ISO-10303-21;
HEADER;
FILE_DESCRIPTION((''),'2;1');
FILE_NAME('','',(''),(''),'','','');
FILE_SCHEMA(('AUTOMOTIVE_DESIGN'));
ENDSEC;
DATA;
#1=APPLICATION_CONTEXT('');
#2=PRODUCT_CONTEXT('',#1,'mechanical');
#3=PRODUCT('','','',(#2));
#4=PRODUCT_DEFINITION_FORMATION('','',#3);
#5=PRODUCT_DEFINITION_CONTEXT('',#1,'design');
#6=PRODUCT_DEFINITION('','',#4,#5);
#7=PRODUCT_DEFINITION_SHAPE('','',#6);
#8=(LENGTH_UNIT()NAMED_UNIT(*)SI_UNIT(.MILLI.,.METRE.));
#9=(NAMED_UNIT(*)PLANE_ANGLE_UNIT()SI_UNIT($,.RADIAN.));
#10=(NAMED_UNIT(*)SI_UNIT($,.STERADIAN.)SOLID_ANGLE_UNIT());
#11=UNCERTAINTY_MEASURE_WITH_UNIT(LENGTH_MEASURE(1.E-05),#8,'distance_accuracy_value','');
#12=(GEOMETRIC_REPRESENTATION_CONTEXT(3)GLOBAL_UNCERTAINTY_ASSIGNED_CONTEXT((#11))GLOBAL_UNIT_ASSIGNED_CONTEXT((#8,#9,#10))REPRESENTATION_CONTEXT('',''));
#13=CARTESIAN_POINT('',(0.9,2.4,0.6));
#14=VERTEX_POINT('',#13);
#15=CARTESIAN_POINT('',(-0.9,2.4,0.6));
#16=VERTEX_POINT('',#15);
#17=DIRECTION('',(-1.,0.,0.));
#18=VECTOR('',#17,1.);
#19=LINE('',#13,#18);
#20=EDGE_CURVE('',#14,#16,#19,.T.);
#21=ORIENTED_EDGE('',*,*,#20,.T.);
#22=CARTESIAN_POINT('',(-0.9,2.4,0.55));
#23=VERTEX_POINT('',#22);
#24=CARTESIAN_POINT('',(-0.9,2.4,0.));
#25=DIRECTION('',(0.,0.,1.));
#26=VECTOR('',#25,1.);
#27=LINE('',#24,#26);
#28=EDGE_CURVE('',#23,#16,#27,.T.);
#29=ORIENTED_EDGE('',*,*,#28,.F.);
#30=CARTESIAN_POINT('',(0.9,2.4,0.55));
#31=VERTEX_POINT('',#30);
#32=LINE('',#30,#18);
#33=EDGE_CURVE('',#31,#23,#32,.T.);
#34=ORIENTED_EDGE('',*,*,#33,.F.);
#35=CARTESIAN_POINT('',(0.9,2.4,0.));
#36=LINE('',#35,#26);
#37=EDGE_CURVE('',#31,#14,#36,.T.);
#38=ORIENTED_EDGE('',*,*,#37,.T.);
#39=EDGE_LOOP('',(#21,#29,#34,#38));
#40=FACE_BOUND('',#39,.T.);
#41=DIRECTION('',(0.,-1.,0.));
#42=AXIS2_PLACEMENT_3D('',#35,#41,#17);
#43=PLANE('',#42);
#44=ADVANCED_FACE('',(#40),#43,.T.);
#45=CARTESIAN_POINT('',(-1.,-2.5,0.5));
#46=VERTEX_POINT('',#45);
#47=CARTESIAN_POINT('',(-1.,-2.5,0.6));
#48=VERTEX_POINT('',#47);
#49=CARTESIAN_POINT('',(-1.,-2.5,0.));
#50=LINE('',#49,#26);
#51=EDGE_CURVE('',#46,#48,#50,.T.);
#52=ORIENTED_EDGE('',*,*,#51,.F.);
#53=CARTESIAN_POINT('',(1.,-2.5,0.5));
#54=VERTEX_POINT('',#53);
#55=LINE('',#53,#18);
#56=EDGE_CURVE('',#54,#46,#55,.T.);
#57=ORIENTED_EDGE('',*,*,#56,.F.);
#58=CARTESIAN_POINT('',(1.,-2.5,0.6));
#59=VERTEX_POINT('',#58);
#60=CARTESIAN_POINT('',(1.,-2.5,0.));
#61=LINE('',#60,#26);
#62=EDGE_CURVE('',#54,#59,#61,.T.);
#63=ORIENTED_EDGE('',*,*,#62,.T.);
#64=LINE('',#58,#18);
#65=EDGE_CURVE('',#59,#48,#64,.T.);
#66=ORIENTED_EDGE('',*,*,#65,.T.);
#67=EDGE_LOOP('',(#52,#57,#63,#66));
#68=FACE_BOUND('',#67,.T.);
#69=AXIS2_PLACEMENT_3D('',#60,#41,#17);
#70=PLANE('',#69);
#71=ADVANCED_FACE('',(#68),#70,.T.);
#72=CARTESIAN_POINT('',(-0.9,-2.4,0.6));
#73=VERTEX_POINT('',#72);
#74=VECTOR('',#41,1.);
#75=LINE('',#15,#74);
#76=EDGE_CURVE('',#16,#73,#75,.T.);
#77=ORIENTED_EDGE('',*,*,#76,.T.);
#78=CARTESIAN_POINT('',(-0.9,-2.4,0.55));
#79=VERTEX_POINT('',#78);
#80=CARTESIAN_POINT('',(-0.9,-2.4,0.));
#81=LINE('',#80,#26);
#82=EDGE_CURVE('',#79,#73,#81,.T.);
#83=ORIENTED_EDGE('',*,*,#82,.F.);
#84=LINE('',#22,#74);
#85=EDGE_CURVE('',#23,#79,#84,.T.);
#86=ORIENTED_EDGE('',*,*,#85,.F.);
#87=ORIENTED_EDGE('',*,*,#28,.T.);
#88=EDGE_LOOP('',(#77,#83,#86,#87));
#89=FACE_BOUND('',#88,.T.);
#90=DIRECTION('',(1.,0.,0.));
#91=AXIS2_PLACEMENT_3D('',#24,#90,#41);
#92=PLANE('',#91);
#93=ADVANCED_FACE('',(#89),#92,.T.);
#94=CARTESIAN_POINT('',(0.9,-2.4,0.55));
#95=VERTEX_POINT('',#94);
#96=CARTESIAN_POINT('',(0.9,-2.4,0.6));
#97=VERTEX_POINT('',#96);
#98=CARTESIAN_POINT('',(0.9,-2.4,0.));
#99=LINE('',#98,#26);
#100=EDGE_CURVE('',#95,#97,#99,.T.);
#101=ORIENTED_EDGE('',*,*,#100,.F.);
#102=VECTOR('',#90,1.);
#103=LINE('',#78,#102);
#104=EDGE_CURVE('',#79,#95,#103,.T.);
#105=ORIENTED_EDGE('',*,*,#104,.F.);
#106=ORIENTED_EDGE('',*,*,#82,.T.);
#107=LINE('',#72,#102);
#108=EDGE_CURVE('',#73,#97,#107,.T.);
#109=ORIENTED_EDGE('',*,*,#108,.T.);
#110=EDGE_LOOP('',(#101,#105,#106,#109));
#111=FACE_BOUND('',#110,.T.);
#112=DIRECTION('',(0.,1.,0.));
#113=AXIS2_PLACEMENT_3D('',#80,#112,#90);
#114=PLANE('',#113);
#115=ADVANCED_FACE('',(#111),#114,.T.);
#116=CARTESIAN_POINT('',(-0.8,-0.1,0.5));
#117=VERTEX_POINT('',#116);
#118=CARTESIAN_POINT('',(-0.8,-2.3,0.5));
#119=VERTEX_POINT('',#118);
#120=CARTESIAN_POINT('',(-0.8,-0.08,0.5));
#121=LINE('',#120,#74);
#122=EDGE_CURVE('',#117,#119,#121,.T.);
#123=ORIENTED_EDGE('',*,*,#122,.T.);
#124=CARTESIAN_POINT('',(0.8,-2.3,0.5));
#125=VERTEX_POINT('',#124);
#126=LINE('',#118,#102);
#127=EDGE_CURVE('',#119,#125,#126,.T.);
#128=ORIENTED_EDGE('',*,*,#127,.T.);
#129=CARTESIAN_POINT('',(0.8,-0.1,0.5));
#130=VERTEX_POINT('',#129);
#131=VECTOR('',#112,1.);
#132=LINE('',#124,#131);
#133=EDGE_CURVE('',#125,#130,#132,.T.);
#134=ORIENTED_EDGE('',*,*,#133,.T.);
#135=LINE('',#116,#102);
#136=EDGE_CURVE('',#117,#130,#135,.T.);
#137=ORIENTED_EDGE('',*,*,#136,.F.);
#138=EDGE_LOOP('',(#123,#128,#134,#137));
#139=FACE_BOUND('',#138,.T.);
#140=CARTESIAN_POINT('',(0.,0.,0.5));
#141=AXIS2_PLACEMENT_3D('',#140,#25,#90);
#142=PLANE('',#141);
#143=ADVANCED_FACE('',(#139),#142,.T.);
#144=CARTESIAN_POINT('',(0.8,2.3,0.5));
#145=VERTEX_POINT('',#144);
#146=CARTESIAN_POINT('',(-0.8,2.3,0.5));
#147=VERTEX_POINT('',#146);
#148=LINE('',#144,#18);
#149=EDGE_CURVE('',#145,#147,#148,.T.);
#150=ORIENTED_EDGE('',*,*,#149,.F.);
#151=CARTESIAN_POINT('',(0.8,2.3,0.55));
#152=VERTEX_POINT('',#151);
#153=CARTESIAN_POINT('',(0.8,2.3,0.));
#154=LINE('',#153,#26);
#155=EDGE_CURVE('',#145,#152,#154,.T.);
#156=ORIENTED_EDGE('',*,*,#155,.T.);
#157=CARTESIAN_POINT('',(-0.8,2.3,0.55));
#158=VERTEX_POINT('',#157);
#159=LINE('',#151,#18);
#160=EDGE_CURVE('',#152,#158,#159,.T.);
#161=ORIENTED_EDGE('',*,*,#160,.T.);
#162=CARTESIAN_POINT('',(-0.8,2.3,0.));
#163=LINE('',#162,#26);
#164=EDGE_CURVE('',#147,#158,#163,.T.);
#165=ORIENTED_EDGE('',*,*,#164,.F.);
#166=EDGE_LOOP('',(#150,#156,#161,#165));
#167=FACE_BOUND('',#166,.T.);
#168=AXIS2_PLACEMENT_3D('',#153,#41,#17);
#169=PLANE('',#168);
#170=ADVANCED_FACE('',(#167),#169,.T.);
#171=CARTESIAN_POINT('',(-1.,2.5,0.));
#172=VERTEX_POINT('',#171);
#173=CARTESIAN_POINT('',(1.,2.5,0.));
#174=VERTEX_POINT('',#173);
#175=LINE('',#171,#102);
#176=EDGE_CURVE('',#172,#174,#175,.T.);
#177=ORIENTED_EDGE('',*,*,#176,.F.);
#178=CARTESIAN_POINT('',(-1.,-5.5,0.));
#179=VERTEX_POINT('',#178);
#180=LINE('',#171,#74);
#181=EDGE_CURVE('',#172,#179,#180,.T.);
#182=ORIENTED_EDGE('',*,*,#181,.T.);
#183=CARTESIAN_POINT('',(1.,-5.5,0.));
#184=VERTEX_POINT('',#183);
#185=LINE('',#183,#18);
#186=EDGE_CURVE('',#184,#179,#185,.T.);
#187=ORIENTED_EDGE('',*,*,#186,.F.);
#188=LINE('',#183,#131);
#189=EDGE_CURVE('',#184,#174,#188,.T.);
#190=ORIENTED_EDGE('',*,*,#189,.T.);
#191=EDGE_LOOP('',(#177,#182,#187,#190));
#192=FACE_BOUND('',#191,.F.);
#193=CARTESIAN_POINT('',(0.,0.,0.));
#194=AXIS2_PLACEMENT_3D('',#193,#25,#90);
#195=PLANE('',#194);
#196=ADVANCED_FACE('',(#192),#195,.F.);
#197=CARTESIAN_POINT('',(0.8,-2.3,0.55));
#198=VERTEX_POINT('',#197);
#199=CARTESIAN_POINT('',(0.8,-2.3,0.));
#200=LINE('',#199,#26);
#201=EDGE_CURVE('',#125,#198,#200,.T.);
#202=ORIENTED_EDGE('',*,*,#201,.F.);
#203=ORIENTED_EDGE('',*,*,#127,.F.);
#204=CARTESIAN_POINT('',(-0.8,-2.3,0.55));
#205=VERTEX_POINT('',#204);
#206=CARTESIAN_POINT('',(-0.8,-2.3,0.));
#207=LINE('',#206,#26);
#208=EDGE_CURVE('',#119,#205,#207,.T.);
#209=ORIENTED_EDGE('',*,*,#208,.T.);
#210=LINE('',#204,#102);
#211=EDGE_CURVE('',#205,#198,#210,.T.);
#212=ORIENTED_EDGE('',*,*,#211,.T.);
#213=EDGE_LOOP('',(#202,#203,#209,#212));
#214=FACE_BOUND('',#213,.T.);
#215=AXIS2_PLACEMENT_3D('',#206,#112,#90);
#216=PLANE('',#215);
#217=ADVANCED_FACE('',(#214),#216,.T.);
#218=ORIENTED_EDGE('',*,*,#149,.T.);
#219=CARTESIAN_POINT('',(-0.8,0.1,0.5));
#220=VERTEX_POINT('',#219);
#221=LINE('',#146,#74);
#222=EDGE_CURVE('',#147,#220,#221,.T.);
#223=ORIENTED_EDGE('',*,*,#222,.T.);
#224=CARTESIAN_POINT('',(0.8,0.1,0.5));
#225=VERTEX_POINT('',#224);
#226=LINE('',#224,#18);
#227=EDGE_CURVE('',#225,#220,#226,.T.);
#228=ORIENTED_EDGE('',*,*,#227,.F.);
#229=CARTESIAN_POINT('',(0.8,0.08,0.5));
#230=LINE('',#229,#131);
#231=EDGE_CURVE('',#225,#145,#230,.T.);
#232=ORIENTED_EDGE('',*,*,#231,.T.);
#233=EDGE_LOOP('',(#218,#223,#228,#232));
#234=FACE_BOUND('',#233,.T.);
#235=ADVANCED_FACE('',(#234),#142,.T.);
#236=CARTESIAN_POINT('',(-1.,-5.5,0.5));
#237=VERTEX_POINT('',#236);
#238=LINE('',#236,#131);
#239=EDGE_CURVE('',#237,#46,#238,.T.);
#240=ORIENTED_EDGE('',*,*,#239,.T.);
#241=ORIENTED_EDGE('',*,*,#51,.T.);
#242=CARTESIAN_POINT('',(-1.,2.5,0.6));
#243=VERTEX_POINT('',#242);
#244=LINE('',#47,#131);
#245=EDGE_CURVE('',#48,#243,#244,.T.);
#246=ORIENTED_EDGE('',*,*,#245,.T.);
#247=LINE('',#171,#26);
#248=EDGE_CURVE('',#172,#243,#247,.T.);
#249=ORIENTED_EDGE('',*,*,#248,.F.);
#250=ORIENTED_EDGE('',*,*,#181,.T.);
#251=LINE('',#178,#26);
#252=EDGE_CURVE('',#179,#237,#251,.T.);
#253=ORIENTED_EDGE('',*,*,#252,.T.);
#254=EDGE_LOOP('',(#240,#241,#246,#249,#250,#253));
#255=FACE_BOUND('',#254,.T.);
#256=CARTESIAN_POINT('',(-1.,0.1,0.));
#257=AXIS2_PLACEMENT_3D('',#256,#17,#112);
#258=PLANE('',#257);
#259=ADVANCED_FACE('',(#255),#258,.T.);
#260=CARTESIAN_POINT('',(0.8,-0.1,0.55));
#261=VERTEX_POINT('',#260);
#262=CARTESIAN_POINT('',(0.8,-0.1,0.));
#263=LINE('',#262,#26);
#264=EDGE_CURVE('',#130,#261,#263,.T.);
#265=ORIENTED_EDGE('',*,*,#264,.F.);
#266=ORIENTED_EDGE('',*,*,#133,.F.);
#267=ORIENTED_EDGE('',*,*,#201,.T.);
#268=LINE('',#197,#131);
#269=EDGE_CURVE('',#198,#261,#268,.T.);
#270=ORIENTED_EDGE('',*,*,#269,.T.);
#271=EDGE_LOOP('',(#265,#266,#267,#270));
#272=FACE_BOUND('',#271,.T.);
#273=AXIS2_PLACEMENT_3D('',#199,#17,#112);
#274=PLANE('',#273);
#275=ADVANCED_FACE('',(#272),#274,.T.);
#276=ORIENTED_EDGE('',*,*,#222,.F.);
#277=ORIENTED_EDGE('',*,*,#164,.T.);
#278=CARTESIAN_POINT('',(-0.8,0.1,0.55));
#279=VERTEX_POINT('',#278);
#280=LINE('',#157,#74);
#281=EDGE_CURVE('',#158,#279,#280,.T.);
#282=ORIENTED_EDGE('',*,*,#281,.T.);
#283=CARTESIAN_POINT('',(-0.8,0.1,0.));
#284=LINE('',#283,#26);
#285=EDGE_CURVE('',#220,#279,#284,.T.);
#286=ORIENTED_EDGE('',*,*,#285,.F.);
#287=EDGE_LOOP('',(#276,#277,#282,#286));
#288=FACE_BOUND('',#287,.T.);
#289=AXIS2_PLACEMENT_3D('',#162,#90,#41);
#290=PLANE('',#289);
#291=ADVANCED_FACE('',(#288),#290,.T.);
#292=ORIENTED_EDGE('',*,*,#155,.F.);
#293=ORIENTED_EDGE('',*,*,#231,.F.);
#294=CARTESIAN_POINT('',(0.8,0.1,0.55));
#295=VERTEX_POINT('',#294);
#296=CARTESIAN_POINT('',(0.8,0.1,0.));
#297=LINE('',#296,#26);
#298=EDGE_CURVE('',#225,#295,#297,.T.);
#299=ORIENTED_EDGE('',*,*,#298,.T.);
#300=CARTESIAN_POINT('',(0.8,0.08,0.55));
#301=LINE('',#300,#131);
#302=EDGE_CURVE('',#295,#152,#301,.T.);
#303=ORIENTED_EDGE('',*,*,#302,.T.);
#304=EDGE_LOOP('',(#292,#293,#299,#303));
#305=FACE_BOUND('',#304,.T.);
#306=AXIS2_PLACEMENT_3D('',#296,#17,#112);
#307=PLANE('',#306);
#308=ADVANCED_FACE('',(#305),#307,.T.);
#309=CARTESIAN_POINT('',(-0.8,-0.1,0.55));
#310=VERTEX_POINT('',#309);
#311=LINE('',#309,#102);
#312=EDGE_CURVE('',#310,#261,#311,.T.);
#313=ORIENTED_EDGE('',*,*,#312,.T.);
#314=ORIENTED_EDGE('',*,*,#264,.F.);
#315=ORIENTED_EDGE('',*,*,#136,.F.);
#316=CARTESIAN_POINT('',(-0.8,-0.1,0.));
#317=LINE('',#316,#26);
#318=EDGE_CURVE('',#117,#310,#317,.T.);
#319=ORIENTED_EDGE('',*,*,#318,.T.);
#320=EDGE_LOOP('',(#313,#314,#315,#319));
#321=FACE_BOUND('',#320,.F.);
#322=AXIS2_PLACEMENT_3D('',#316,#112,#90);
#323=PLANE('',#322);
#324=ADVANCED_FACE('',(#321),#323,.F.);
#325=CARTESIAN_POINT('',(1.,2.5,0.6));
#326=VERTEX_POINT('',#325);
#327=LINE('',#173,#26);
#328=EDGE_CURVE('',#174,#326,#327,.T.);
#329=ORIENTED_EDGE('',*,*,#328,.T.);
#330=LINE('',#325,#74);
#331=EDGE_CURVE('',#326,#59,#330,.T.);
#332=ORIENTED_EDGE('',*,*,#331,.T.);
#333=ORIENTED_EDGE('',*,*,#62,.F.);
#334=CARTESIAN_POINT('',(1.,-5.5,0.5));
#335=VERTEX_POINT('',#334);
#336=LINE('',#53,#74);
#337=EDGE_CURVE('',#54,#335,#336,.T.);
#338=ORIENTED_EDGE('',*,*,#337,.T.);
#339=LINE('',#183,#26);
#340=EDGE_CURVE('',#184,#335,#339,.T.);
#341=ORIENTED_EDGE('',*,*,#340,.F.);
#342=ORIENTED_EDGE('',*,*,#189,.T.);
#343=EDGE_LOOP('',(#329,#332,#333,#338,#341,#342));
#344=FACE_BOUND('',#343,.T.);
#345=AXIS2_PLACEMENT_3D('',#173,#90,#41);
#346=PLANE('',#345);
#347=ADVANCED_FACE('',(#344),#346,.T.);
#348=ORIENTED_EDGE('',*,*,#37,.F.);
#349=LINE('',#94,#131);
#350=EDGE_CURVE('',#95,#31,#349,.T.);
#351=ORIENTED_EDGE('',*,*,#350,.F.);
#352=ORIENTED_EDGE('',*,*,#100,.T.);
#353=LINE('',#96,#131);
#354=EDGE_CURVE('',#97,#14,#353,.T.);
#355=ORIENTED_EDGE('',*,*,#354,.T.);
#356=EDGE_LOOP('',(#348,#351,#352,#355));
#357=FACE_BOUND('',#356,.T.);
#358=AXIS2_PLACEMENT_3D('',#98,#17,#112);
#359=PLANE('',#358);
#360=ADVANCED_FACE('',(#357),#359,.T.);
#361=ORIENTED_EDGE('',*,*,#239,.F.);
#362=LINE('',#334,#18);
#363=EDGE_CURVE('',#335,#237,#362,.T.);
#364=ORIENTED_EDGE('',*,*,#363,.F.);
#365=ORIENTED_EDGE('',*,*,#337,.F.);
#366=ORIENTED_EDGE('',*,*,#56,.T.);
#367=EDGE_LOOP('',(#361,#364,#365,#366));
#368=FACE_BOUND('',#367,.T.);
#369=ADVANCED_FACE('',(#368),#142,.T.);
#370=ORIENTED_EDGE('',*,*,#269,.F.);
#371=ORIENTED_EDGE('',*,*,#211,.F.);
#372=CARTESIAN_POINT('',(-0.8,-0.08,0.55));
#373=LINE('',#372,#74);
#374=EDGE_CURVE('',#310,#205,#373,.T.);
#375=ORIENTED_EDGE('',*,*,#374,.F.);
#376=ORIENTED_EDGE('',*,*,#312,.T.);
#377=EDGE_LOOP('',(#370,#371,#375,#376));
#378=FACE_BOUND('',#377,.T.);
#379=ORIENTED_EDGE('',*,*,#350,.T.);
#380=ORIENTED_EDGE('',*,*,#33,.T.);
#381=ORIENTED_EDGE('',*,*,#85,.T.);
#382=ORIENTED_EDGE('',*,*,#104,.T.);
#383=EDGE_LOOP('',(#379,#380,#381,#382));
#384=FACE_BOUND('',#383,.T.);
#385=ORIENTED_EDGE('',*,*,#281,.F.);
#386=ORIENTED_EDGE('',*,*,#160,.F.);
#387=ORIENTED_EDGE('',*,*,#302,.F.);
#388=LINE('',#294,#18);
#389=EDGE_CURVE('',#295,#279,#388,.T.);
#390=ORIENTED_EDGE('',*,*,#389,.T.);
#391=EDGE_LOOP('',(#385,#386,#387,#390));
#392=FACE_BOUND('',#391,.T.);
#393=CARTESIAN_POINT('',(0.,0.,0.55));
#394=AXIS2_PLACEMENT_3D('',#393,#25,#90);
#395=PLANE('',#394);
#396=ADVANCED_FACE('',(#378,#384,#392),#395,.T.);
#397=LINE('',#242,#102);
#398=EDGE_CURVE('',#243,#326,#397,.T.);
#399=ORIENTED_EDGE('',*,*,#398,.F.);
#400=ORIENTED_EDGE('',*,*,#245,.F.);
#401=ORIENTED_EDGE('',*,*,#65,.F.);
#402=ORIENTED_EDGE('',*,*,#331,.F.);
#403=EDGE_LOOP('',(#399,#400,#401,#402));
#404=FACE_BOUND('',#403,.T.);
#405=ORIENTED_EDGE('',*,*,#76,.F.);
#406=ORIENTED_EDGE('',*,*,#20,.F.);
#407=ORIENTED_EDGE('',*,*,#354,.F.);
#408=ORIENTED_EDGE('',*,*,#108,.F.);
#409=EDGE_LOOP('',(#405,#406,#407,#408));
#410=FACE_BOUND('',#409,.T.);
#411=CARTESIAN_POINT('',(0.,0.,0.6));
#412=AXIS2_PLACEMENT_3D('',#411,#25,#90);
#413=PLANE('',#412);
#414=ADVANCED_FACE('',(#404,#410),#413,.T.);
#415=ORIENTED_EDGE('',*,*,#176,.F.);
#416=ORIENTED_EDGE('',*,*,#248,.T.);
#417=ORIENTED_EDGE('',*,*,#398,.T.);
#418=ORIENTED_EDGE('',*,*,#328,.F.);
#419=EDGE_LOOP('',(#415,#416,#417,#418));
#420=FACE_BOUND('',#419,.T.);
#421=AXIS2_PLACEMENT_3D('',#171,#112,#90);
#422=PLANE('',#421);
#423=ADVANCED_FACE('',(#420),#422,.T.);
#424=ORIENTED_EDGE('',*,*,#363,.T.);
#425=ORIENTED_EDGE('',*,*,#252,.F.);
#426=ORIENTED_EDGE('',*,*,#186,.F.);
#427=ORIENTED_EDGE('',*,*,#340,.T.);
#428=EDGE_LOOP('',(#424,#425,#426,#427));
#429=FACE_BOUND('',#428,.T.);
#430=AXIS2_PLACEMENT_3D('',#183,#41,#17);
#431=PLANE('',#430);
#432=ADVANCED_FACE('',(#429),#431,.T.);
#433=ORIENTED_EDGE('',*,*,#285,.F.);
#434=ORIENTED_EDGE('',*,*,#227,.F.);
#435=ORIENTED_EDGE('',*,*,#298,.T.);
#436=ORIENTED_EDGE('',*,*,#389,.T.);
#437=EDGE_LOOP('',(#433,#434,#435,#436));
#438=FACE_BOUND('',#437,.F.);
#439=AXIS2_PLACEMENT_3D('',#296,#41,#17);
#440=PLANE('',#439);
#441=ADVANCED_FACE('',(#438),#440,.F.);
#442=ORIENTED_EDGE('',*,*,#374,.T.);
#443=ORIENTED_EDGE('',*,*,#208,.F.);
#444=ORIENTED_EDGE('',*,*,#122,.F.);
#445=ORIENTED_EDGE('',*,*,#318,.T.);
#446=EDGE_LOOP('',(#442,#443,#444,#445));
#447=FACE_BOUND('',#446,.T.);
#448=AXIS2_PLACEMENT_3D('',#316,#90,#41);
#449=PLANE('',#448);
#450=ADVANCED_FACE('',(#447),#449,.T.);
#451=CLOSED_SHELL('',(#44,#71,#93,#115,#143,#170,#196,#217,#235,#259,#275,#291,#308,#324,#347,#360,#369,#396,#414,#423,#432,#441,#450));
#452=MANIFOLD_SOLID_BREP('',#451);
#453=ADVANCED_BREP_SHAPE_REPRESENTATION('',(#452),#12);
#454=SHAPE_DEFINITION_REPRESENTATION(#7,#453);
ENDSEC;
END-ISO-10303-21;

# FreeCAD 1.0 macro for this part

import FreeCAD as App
import Part
import Sketcher


def add_polygon(sketch, points):
    """Adds a closed chain of lines whose ends are joined by coincident constraints."""
    first, n = sketch.GeometryCount, len(points)
    for a, b in zip(points, points[1:] + points[:1]):
        sketch.addGeometry(Part.LineSegment(App.Vector(*a, 0), App.Vector(*b, 0)), False)
    for i in range(n):
        sketch.addConstraint(Sketcher.Constraint("Coincident", first + i, 2, first + (i + 1) % n, 1))

doc = App.newDocument("Part")
params = doc.addObject("Spreadsheet::Sheet", "Params")
for row, (alias, value) in enumerate([
    ("sketch1_width", "2 mm"),
    ("sketch1_height", "5 mm"),
    ("sketch1_width2", "1.8 mm"),
    ("sketch1_height2", "4.8 mm"),
    ("pad1_length", "0.6 mm"),
    ("sketch2_width", "1.8 mm"),
    ("sketch2_width2", "1.6 mm"),
    ("sketch2_height", "4.8 mm"),
    ("sketch2_height2", "2.2 mm"),
    ("pad2_length", "0.55 mm"),
    ("sketch3_width", "2 mm"),
    ("sketch3_height", "3 mm"),
    ("sketch3_width2", "1.6 mm"),
    ("pad3_length", "0.5 mm"),
], start=1):
    params.set(f"A{row}", alias)
    params.set(f"B{row}", "=" + value)
    params.setAlias(f"B{row}", alias)

body = doc.addObject("PartDesign::Body", "Body")

sketch1 = body.newObject("Sketcher::SketchObject", "Sketch")
sketch1.AttachmentSupport = (doc.getObject("XY_Plane"), [""])
sketch1.MapMode = "FlatFace"
add_polygon(sketch1, [(1, 2.5), (-1, 2.5), (-1, -2.5), (1, -2.5)])
add_polygon(sketch1, [(0.9, -2.4), (-0.9, -2.4), (-0.9, 2.4), (0.9, 2.4)])
sketch1.addConstraint([
    Sketcher.Constraint("Horizontal", 0),
    Sketcher.Constraint("Vertical", 1),
    Sketcher.Constraint("Horizontal", 2),
    Sketcher.Constraint("Vertical", 3),
    Sketcher.Constraint("Horizontal", 4),
    Sketcher.Constraint("Vertical", 5),
    Sketcher.Constraint("Horizontal", 6),
    Sketcher.Constraint("Vertical", 7),
    Sketcher.Constraint("Symmetric", 0, 2, 2, 2, -1, 1),
    Sketcher.Constraint("Symmetric", 4, 2, 6, 2, -1, 1),
    Sketcher.Constraint("DistanceX", 0, 2, 0, 1, 2.0),
    Sketcher.Constraint("DistanceY", 1, 2, 1, 1, 5.0),
    Sketcher.Constraint("DistanceX", 4, 2, 4, 1, 1.8),
    Sketcher.Constraint("DistanceY", 5, 1, 5, 2, 4.8),
])
sketch1.setExpression("Constraints[18]", "Params.sketch1_width")
sketch1.setExpression("Constraints[19]", "Params.sketch1_height")
sketch1.setExpression("Constraints[20]", "Params.sketch1_width2")
sketch1.setExpression("Constraints[21]", "Params.sketch1_height2")
pad1 = body.newObject("PartDesign::Pad", "Pad")
pad1.Profile = sketch1
pad1.setExpression("Length", "Params.pad1_length")

sketch2 = body.newObject("Sketcher::SketchObject", "Sketch001")
sketch2.AttachmentSupport = (doc.getObject("XY_Plane"), [""])
sketch2.MapMode = "FlatFace"
add_polygon(sketch2, [(-0.9, 2.4), (-0.9, -2.4), (0.9, -2.4), (0.9, 2.4)])
add_polygon(sketch2, [(-0.8, -2.3), (-0.8, -0.1), (0.8, -0.1), (0.8, -2.3)])
add_polygon(sketch2, [(0.8, 2.3), (0.8, 0.1), (-0.8, 0.1), (-0.8, 2.3)])
sketch2.addConstraint([
    Sketcher.Constraint("Vertical", 0),
    Sketcher.Constraint("Horizontal", 1),
    Sketcher.Constraint("Vertical", 2),
    Sketcher.Constraint("Horizontal", 3),
    Sketcher.Constraint("Vertical", 4),
    Sketcher.Constraint("Horizontal", 5),
    Sketcher.Constraint("Vertical", 6),
    Sketcher.Constraint("Horizontal", 7),
    Sketcher.Constraint("Vertical", 8),
    Sketcher.Constraint("Horizontal", 9),
    Sketcher.Constraint("Vertical", 10),
    Sketcher.Constraint("Horizontal", 11),
    Sketcher.Constraint("Symmetric", 0, 2, 2, 2, -1, 1),
    Sketcher.Constraint("Symmetric", 4, 2, 8, 2, -1, 1),
    Sketcher.Constraint("Symmetric", 6, 2, 10, 2, -1, 1),
    Sketcher.Constraint("Vertical", 6, 2, 8, 2),
    Sketcher.Constraint("DistanceX", 1, 1, 1, 2, 1.8),
    Sketcher.Constraint("DistanceX", 5, 1, 5, 2, 1.6),
    Sketcher.Constraint("DistanceY", 0, 2, 0, 1, 4.8),
    Sketcher.Constraint("DistanceY", 5, 2, 8, 2, 0.2),
    Sketcher.Constraint("DistanceY", 4, 1, 4, 2, 2.2),
])
sketch2.setExpression("Constraints[28]", "Params.sketch2_width")
sketch2.setExpression("Constraints[29]", "Params.sketch2_width2")
sketch2.setExpression("Constraints[30]", "Params.sketch2_height")
sketch2.setExpression("Constraints[32]", "Params.sketch2_height2")
pad2 = body.newObject("PartDesign::Pad", "Pad001")
pad2.Profile = sketch2
pad2.setExpression("Length", "Params.pad2_length")

sketch3 = body.newObject("Sketcher::SketchObject", "Sketch002")
sketch3.AttachmentSupport = (doc.getObject("XY_Plane"), [""])
sketch3.MapMode = "FlatFace"
add_polygon(sketch3, [(1, -2.5), (-1, -2.5), (-1, -5.5), (1, -5.5)])
add_polygon(sketch3, [(0.8, -0.1), (-0.8, -0.1), (-0.8, -2.3), (0.8, -2.3)])
add_polygon(sketch3, [(-0.8, 0.1), (0.8, 0.1), (0.8, 2.3), (-0.8, 2.3)])
sketch3.addConstraint([
    Sketcher.Constraint("Horizontal", 0),
    Sketcher.Constraint("Vertical", 1),
    Sketcher.Constraint("Horizontal", 2),
    Sketcher.Constraint("Vertical", 3),
    Sketcher.Constraint("Horizontal", 4),
    Sketcher.Constraint("Vertical", 5),
    Sketcher.Constraint("Horizontal", 6),
    Sketcher.Constraint("Vertical", 7),
    Sketcher.Constraint("Horizontal", 8),
    Sketcher.Constraint("Vertical", 9),
    Sketcher.Constraint("Horizontal", 10),
    Sketcher.Constraint("Vertical", 11),
    Sketcher.Constraint("Symmetric", 4, 2, 8, 2, -1, 1),
    Sketcher.Constraint("Symmetric", 6, 2, 10, 2, -1, 1),
    Sketcher.Constraint("Vertical", 7, 2, 8, 2),
    Sketcher.Constraint("DistanceX", 0, 2, 0, 1, 2.0),
    Sketcher.Constraint("DistanceY", 1, 2, 1, 1, 3.0),
    Sketcher.Constraint("DistanceX", 4, 2, 4, 1, 1.6),
    Sketcher.Constraint("DistanceX", 0, 2, 4, 2, 0.2),
    Sketcher.Constraint("DistanceY", 0, 2, 5, 2, 0.2),
    Sketcher.Constraint("DistanceY", 7, 2, 8, 2, 0.2),
    Sketcher.Constraint("DistanceY", 6, 2, 9, 2, 4.6),
])
sketch3.setExpression("Constraints[27]", "Params.sketch3_width")
sketch3.setExpression("Constraints[28]", "Params.sketch3_height")
sketch3.setExpression("Constraints[29]", "Params.sketch3_width2")
pad3 = body.newObject("PartDesign::Pad", "Pad002")
pad3.Profile = sketch3
pad3.setExpression("Length", "Params.pad3_length")

doc.recompute()
